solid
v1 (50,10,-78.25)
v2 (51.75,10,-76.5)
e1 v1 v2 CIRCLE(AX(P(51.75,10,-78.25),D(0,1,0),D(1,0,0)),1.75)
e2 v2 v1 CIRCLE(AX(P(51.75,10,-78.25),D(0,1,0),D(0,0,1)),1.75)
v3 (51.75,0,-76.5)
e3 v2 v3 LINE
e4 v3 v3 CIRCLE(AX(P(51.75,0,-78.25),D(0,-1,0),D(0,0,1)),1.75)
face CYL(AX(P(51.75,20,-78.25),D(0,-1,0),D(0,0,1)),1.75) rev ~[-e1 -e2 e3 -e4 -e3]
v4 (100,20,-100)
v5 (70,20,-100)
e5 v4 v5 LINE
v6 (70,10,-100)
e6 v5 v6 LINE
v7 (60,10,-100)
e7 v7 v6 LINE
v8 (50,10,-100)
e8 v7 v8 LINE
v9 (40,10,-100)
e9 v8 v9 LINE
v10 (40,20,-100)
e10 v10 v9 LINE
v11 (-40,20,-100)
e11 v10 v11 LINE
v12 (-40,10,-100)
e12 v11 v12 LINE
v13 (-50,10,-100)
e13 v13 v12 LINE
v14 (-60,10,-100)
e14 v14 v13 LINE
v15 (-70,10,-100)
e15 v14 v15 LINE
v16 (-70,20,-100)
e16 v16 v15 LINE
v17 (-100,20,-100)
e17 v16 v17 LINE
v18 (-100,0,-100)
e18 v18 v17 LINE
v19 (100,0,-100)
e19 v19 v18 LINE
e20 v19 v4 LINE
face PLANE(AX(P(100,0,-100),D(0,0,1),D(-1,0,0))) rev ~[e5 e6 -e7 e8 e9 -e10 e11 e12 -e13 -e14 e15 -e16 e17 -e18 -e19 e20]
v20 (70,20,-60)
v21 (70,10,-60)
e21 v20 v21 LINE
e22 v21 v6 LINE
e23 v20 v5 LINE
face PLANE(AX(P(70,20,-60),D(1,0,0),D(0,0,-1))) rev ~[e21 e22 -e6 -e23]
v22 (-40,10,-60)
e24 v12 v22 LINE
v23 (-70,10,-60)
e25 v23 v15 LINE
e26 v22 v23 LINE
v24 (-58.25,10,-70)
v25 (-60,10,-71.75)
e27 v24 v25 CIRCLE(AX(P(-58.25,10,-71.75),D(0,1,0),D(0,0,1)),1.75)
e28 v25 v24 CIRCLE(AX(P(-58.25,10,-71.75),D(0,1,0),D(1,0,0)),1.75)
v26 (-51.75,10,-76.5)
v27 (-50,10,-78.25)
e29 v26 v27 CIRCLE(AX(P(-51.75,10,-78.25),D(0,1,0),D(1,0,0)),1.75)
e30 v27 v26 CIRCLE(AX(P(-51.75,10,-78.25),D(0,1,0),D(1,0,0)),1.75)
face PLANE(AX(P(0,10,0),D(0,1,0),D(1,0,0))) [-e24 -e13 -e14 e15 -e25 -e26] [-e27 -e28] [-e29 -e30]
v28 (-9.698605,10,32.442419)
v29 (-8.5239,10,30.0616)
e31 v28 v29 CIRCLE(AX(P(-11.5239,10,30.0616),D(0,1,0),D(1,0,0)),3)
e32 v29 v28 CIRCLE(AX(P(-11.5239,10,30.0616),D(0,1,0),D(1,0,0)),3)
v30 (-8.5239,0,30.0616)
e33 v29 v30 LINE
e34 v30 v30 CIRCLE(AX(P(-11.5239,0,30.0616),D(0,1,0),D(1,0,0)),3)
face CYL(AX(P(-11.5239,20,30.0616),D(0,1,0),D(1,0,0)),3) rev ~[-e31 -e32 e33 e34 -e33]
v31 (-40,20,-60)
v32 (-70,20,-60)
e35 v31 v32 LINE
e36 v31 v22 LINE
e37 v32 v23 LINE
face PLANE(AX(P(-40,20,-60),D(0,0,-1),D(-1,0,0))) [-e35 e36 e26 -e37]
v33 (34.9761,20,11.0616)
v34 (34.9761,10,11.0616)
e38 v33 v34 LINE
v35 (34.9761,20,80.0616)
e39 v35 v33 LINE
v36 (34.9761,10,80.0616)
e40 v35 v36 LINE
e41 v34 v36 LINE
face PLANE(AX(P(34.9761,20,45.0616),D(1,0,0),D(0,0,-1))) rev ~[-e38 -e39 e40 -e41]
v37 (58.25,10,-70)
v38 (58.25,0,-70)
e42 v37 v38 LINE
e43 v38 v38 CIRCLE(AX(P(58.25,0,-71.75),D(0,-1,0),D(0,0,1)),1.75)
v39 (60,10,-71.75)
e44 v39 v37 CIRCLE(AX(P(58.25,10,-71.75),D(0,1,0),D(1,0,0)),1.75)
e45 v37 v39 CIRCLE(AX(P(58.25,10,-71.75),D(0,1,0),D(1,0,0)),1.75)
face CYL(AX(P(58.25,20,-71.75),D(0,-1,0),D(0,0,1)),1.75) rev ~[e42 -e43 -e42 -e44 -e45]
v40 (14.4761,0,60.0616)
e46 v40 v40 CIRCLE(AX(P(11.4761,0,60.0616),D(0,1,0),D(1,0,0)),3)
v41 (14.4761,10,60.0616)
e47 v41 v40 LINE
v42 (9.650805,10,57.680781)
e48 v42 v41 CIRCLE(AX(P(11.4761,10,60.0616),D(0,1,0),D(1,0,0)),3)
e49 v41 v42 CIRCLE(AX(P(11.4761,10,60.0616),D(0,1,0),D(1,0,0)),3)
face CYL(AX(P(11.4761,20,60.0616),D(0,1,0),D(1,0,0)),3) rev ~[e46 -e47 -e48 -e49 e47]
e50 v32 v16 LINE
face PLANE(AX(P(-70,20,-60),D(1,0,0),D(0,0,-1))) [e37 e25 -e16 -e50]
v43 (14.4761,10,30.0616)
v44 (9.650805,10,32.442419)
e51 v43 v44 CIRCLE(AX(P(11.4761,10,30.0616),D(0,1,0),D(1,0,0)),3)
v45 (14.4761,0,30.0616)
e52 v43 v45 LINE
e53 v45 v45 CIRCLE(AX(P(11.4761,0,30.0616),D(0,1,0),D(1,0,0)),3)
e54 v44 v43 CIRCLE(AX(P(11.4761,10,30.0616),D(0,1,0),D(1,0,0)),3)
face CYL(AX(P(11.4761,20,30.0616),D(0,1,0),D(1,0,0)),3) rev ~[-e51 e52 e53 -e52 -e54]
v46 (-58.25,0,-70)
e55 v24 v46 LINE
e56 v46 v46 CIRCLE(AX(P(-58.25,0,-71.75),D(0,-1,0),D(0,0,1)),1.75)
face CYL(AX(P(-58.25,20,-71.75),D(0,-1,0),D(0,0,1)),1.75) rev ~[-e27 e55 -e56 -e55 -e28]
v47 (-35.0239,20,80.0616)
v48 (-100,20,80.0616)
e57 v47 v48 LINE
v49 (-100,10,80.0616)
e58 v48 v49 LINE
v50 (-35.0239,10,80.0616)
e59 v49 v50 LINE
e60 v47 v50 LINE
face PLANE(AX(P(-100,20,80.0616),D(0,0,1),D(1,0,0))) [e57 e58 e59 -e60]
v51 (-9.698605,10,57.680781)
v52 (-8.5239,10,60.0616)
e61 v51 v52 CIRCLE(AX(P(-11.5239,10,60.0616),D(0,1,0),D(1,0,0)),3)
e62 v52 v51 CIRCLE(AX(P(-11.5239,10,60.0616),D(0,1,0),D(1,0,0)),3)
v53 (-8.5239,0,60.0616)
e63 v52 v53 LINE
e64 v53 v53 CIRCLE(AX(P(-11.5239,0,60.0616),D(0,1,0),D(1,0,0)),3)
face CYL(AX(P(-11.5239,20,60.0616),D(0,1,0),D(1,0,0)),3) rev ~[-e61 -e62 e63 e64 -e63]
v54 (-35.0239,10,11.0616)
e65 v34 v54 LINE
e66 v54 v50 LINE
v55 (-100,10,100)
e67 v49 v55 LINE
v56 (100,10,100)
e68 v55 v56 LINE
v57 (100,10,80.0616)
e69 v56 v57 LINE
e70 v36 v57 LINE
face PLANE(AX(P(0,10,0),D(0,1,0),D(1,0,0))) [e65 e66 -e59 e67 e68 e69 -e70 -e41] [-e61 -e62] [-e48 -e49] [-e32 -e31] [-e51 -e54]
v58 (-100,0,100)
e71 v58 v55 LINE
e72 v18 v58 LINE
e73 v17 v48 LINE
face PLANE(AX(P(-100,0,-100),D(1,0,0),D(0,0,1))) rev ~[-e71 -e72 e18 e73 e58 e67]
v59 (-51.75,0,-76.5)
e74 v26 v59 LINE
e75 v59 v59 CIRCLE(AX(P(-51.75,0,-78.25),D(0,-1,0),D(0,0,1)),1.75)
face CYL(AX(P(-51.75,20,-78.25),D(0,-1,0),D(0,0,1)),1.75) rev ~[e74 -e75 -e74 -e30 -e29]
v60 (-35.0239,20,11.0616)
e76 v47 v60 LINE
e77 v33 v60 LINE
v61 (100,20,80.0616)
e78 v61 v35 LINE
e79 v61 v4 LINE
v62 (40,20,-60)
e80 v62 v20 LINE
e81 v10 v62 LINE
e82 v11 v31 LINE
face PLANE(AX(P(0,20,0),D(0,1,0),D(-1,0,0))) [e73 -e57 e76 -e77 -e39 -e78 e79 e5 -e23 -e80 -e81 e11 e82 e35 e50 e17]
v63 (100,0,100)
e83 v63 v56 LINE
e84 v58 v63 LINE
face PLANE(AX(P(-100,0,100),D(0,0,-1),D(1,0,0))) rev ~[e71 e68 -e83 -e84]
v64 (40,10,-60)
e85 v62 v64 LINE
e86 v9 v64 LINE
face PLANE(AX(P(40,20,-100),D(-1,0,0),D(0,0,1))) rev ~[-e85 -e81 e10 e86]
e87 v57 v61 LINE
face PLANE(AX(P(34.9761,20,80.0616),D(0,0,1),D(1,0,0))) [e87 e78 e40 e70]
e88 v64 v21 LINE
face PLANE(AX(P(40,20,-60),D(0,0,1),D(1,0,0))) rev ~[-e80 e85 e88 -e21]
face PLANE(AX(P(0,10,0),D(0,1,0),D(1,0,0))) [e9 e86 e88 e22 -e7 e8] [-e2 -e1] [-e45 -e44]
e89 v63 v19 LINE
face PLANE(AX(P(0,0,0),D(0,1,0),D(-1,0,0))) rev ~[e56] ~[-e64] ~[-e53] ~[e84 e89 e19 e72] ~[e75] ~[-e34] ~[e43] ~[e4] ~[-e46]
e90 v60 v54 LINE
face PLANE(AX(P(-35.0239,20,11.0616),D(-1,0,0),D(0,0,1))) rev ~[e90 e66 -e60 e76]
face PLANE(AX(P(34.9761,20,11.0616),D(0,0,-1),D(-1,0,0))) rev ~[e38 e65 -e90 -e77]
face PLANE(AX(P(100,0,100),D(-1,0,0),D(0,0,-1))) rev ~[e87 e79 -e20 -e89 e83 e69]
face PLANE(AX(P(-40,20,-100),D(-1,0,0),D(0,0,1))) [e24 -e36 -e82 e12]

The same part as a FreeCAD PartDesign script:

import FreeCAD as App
import Part
import Sketcher

V = App.Vector
Q = App.Units.Quantity

doc = App.newDocument("Part")
body = doc.addObject("PartDesign::Body", "Body")

sketch1 = doc.addObject("Sketcher::SketchObject", "Sketch")
body.addObject(sketch1)
sketch1.AttachmentSupport = (doc.XZ_Plane, [""])
sketch1.MapMode = "FlatFace"
sketch1.addGeometry(Part.LineSegment(V(-100, -100, 0), V(-100, 100, 0)), False)
sketch1.addGeometry(Part.LineSegment(V(-100, 100, 0), V(100, 100, 0)), False)
sketch1.addGeometry(Part.LineSegment(V(100, 100, 0), V(100, -100, 0)), False)
sketch1.addGeometry(Part.LineSegment(V(100, -100, 0), V(-100, -100, 0)), False)
sketch1.addConstraint(Sketcher.Constraint("Coincident", 0, 2, 1, 1))
sketch1.addConstraint(Sketcher.Constraint("Coincident", 1, 2, 2, 1))
sketch1.addConstraint(Sketcher.Constraint("Coincident", 2, 2, 3, 1))
sketch1.addConstraint(Sketcher.Constraint("Coincident", 3, 2, 0, 1))
sketch1.addConstraint(Sketcher.Constraint("Vertical", 0))
sketch1.addConstraint(Sketcher.Constraint("Horizontal", 1))
sketch1.addConstraint(Sketcher.Constraint("Vertical", 2))
sketch1.addConstraint(Sketcher.Constraint("Horizontal", 3))
sketch1.addConstraint(Sketcher.Constraint("Symmetric", 0, 2, 2, 2, -1, 1))
sketch1.addConstraint(Sketcher.Constraint("Equal", 3, 0))
sketch1.addConstraint(Sketcher.Constraint("DistanceX", 1, 1, 1, 2, Q("200 mm")))
pad1 = doc.addObject("PartDesign::Pad", "Pad")
body.addObject(pad1)
pad1.Profile = sketch1
pad1.Length = 20
pad1.Reversed = True

sketch2 = doc.addObject("Sketcher::SketchObject", "Sketch001")
body.addObject(sketch2)
sketch2.AttachmentSupport = (doc.XZ_Plane, [""])
sketch2.MapMode = "FlatFace"
sketch2.AttachmentOffset = App.Placement(V(0, 0, -20), App.Rotation())
sketch2.addGeometry(Part.LineSegment(V(-35, 11.1, 0), V(-35, 80.1, 0)), False)
sketch2.addGeometry(Part.LineSegment(V(-35, 80.1, 0), V(-105, 80.1, 0)), False)
sketch2.addGeometry(Part.LineSegment(V(-105, 80.1, 0), V(-105, 100.1, 0)), False)
sketch2.addGeometry(Part.LineSegment(V(-105, 100.1, 0), V(105, 100.1, 0)), False)
sketch2.addGeometry(Part.LineSegment(V(105, 100.1, 0), V(105, 80.1, 0)), False)
sketch2.addGeometry(Part.LineSegment(V(105, 80.1, 0), V(35, 80.1, 0)), False)
sketch2.addGeometry(Part.LineSegment(V(35, 80.1, 0), V(35, 11.1, 0)), False)
sketch2.addGeometry(Part.LineSegment(V(35, 11.1, 0), V(-35, 11.1, 0)), False)
sketch2.addGeometry(Part.Circle(V(-11.5, 30.1, 0), V(0, 0, 1), 3), False)
sketch2.addGeometry(Part.Circle(V(11.5, 30.1, 0), V(0, 0, 1), 3), False)
sketch2.addGeometry(Part.Circle(V(-11.5, 60.1, 0), V(0, 0, 1), 3), False)
sketch2.addGeometry(Part.Circle(V(11.5, 60.1, 0), V(0, 0, 1), 3), False)
sketch2.addConstraint(Sketcher.Constraint("Coincident", 0, 2, 1, 1))
sketch2.addConstraint(Sketcher.Constraint("Coincident", 1, 2, 2, 1))
sketch2.addConstraint(Sketcher.Constraint("Coincident", 2, 2, 3, 1))
sketch2.addConstraint(Sketcher.Constraint("Coincident", 3, 2, 4, 1))
sketch2.addConstraint(Sketcher.Constraint("Coincident", 4, 2, 5, 1))
sketch2.addConstraint(Sketcher.Constraint("Coincident", 5, 2, 6, 1))
sketch2.addConstraint(Sketcher.Constraint("Coincident", 6, 2, 7, 1))
sketch2.addConstraint(Sketcher.Constraint("Coincident", 7, 2, 0, 1))
sketch2.addConstraint(Sketcher.Constraint("Vertical", 0))
sketch2.addConstraint(Sketcher.Constraint("Horizontal", 1))
sketch2.addConstraint(Sketcher.Constraint("Vertical", 2))
sketch2.addConstraint(Sketcher.Constraint("Horizontal", 3))
sketch2.addConstraint(Sketcher.Constraint("Vertical", 4))
sketch2.addConstraint(Sketcher.Constraint("Horizontal", 5))
sketch2.addConstraint(Sketcher.Constraint("Vertical", 6))
sketch2.addConstraint(Sketcher.Constraint("Horizontal", 7))
sketch2.addConstraint(Sketcher.Constraint("Equal", 8, 9))
sketch2.addConstraint(Sketcher.Constraint("Equal", 9, 10))
sketch2.addConstraint(Sketcher.Constraint("Equal", 10, 11))
sketch2.addConstraint(Sketcher.Constraint("Symmetric", 1, 2, 4, 2, -2))
sketch2.addConstraint(Sketcher.Constraint("Horizontal", 8, 3, 9, 3))
sketch2.addConstraint(Sketcher.Constraint("Horizontal", 10, 3, 11, 3))
sketch2.addConstraint(Sketcher.Constraint("Vertical", 8, 3, 10, 3))
sketch2.addConstraint(Sketcher.Constraint("Vertical", 9, 3, 11, 3))
sketch2.addConstraint(Sketcher.Constraint("DistanceY", 0, 1, 0, 2, Q("69 mm")))
sketch2.addConstraint(Sketcher.Constraint("DistanceY", 2, 1, 2, 2, Q("20 mm")))
sketch2.addConstraint(Sketcher.Constraint("Diameter", 8, Q("6 mm")))
sketch2.addConstraint(Sketcher.Constraint("DistanceY", 8, 3, 10, 3, Q("30 mm")))
sketch2.addConstraint(Sketcher.Constraint("DistanceY", 10, 3, 0, 2, Q("20 mm")))
sketch2.addConstraint(Sketcher.Constraint("DistanceX", 3, 1, 3, 2, Q("210 mm")))
sketch2.addConstraint(Sketcher.Constraint("DistanceX", 7, 2, 7, 1, Q("70 mm")))
sketch2.addConstraint(Sketcher.Constraint("DistanceX", 8, 3, 9, 3, Q("23 mm")))
sketch2.addConstraint(Sketcher.Constraint("DistanceX", 0, 2, 10, 3, Q("23.5 mm")))
sketch2.addConstraint(Sketcher.Constraint("DistanceX", 1, 2, 1, 1, Q("69.976 mm")))
sketch2.addConstraint(Sketcher.Constraint("DistanceY", -1, 1, 8, 3, Q("30.0616 mm")))
pocket1 = doc.addObject("PartDesign::Pocket", "Pocket")
body.addObject(pocket1)
pocket1.Profile = sketch2
pocket1.Length = 10
pocket1.Reversed = True

sketch3 = doc.addObject("Sketcher::SketchObject", "Sketch002")
body.addObject(sketch3)
sketch3.AttachmentSupport = (doc.XZ_Plane, [""])
sketch3.MapMode = "FlatFace"
sketch3.AttachmentOffset = App.Placement(V(0, 0, -20), App.Rotation())
sketch3.addGeometry(Part.Circle(V(-11.5, 30.1, 0), V(0, 0, 1), 3), False)
sketch3.addGeometry(Part.Circle(V(11.5, 30.1, 0), V(0, 0, 1), 3), False)
sketch3.addGeometry(Part.Circle(V(11.5, 60.1, 0), V(0, 0, 1), 3), False)
sketch3.addGeometry(Part.Circle(V(-11.5, 60.1, 0), V(0, 0, 1), 3), False)
sketch3.addConstraint(Sketcher.Constraint("Equal", 0, 1))
sketch3.addConstraint(Sketcher.Constraint("Equal", 1, 2))
sketch3.addConstraint(Sketcher.Constraint("Equal", 2, 3))
sketch3.addConstraint(Sketcher.Constraint("Horizontal", 0, 3, 1, 3))
sketch3.addConstraint(Sketcher.Constraint("Horizontal", 2, 3, 3, 3))
sketch3.addConstraint(Sketcher.Constraint("Vertical", 1, 3, 2, 3))
sketch3.addConstraint(Sketcher.Constraint("Vertical", 0, 3, 3, 3))
sketch3.addConstraint(Sketcher.Constraint("Diameter", 0, Q("6 mm")))
sketch3.addConstraint(Sketcher.Constraint("DistanceX", 0, 3, 1, 3, Q("23 mm")))
sketch3.addConstraint(Sketcher.Constraint("DistanceY", 1, 3, 2, 3, Q("30 mm")))
sketch3.addConstraint(Sketcher.Constraint("DistanceX", 0, 3, -1, 1, Q("11.524 mm")))
sketch3.addConstraint(Sketcher.Constraint("DistanceY", -1, 1, 0, 3, Q("30.0616 mm")))
pocket2 = doc.addObject("PartDesign::Pocket", "Pocket001")
body.addObject(pocket2)
pocket2.Profile = sketch3
pocket2.Length = 20
pocket2.Reversed = True

sketch4 = doc.addObject("Sketcher::SketchObject", "Sketch003")
body.addObject(sketch4)
sketch4.AttachmentSupport = (doc.XZ_Plane, [""])
sketch4.MapMode = "FlatFace"
sketch4.AttachmentOffset = App.Placement(V(0, 0, -20), App.Rotation())
sketch4.addGeometry(Part.Circle(V(-58.2, -71.8, 0), V(0, 0, 1), 1.8), False)
sketch4.addGeometry(Part.Circle(V(-51.8, -78.2, 0), V(0, 0, 1), 1.8), False)
sketch4.addGeometry(Part.Circle(V(58.2, -71.8, 0), V(0, 0, 1), 1.8), False)
sketch4.addGeometry(Part.Circle(V(51.8, -78.2, 0), V(0, 0, 1), 1.8), False)
sketch4.addConstraint(Sketcher.Constraint("Equal", 0, 1))
sketch4.addConstraint(Sketcher.Constraint("Equal", 1, 2))
sketch4.addConstraint(Sketcher.Constraint("Equal", 2, 3))
sketch4.addConstraint(Sketcher.Constraint("Symmetric", 0, 3, 2, 3, -2))
sketch4.addConstraint(Sketcher.Constraint("Symmetric", 1, 3, 3, 3, -2))
sketch4.addConstraint(Sketcher.Constraint("Diameter", 0, Q("3.5 mm")))
sketch4.addConstraint(Sketcher.Constraint("DistanceX", 1, 3, 2, 3, Q("110 mm")))
sketch4.addConstraint(Sketcher.Constraint("DistanceX", 0, 3, 1, 3, Q("6.5 mm")))
sketch4.addConstraint(Sketcher.Constraint("DistanceY", 1, 3, 0, 3, Q("6.5 mm")))
sketch4.addConstraint(Sketcher.Constraint("DistanceY", 0, 3, -1, 1, Q("71.75 mm")))
doc.recompute()
hole = doc.addObject("PartDesign::Hole", "Hole")
body.addObject(hole)
hole.Profile = sketch4
hole.ThreadType = "None"
hole.Diameter = 3.5
hole.DepthType = "ThroughAll"
hole.Reversed = True

sketch5 = doc.addObject("Sketcher::SketchObject", "Sketch004")
body.addObject(sketch5)
sketch5.AttachmentSupport = (doc.XZ_Plane, [""])
sketch5.MapMode = "FlatFace"
sketch5.AttachmentOffset = App.Placement(V(0, 0, -20), App.Rotation())
sketch5.addGeometry(Part.LineSegment(V(-40, -100, 0), V(-50, -100, 0)), False)
sketch5.addGeometry(Part.LineSegment(V(-50, -100, 0), V(-60, -100, 0)), False)
sketch5.addGeometry(Part.LineSegment(V(-60, -100, 0), V(-70, -100, 0)), False)
sketch5.addGeometry(Part.LineSegment(V(-70, -100, 0), V(-70, -60, 0)), False)
sketch5.addGeometry(Part.LineSegment(V(-70, -60, 0), V(-40, -60, 0)), False)
sketch5.addGeometry(Part.LineSegment(V(-40, -60, 0), V(-40, -100, 0)), False)
sketch5.addGeometry(Part.Circle(V(-58.2, -71.8, 0), V(0, 0, 1), 1.8), False)
sketch5.addGeometry(Part.Circle(V(-51.8, -78.2, 0), V(0, 0, 1), 1.8), False)
sketch5.addGeometry(Part.LineSegment(V(60, -100, 0), V(50, -100, 0)), False)
sketch5.addGeometry(Part.LineSegment(V(50, -100, 0), V(40, -100, 0)), False)
sketch5.addGeometry(Part.LineSegment(V(40, -100, 0), V(40, -60, 0)), False)
sketch5.addGeometry(Part.LineSegment(V(40, -60, 0), V(70, -60, 0)), False)
sketch5.addGeometry(Part.LineSegment(V(70, -60, 0), V(70, -100, 0)), False)
sketch5.addGeometry(Part.LineSegment(V(70, -100, 0), V(60, -100, 0)), False)
sketch5.addGeometry(Part.Circle(V(58.2, -71.8, 0), V(0, 0, 1), 1.8), False)
sketch5.addGeometry(Part.Circle(V(51.8, -78.2, 0), V(0, 0, 1), 1.8), False)
sketch5.addConstraint(Sketcher.Constraint("Coincident", 0, 2, 1, 1))
sketch5.addConstraint(Sketcher.Constraint("Coincident", 1, 2, 2, 1))
sketch5.addConstraint(Sketcher.Constraint("Coincident", 2, 2, 3, 1))
sketch5.addConstraint(Sketcher.Constraint("Coincident", 3, 2, 4, 1))
sketch5.addConstraint(Sketcher.Constraint("Coincident", 4, 2, 5, 1))
sketch5.addConstraint(Sketcher.Constraint("Coincident", 5, 2, 0, 1))
sketch5.addConstraint(Sketcher.Constraint("Coincident", 8, 2, 9, 1))
sketch5.addConstraint(Sketcher.Constraint("Coincident", 9, 2, 10, 1))
sketch5.addConstraint(Sketcher.Constraint("Coincident", 10, 2, 11, 1))
sketch5.addConstraint(Sketcher.Constraint("Coincident", 11, 2, 12, 1))
sketch5.addConstraint(Sketcher.Constraint("Coincident", 12, 2, 13, 1))
sketch5.addConstraint(Sketcher.Constraint("Coincident", 13, 2, 8, 1))
sketch5.addConstraint(Sketcher.Constraint("Horizontal", 0))
sketch5.addConstraint(Sketcher.Constraint("Horizontal", 1))
sketch5.addConstraint(Sketcher.Constraint("Horizontal", 2))
sketch5.addConstraint(Sketcher.Constraint("Vertical", 3))
sketch5.addConstraint(Sketcher.Constraint("Horizontal", 4))
sketch5.addConstraint(Sketcher.Constraint("Vertical", 5))
sketch5.addConstraint(Sketcher.Constraint("Horizontal", 8))
sketch5.addConstraint(Sketcher.Constraint("Horizontal", 9))
sketch5.addConstraint(Sketcher.Constraint("Vertical", 10))
sketch5.addConstraint(Sketcher.Constraint("Horizontal", 11))
sketch5.addConstraint(Sketcher.Constraint("Vertical", 12))
sketch5.addConstraint(Sketcher.Constraint("Horizontal", 13))
sketch5.addConstraint(Sketcher.Constraint("Equal", 6, 7))
sketch5.addConstraint(Sketcher.Constraint("Equal", 7, 14))
sketch5.addConstraint(Sketcher.Constraint("Equal", 14, 15))
sketch5.addConstraint(Sketcher.Constraint("Symmetric", 6, 3, 14, 3, -2))
sketch5.addConstraint(Sketcher.Constraint("Symmetric", 7, 3, 15, 3, -2))
sketch5.addConstraint(Sketcher.Constraint("Symmetric", 0, 2, 8, 2, -2))
sketch5.addConstraint(Sketcher.Constraint("Symmetric", 4, 2, 10, 2, -2))
sketch5.addConstraint(Sketcher.Constraint("Equal", 0, 1))
sketch5.addConstraint(Sketcher.Constraint("Equal", 1, 2))
sketch5.addConstraint(Sketcher.Constraint("Equal", 2, 8))
sketch5.addConstraint(Sketcher.Constraint("Equal", 4, 11))
sketch5.addConstraint(Sketcher.Constraint("DistanceX", 0, 2, 0, 1, Q("10 mm")))
sketch5.addConstraint(Sketcher.Constraint("DistanceY", 3, 1, 3, 2, Q("40 mm")))
sketch5.addConstraint(Sketcher.Constraint("DistanceX", 4, 2, -1, 1, Q("40 mm")))
sketch5.addConstraint(Sketcher.Constraint("Diameter", 6, Q("3.5 mm")))
sketch5.addConstraint(Sketcher.Constraint("DistanceY", 0, 2, -1, 1, Q("100 mm")))
sketch5.addConstraint(Sketcher.Constraint("DistanceX", 7, 3, 14, 3, Q("110 mm")))
sketch5.addConstraint(Sketcher.Constraint("DistanceX", 6, 3, 7, 3, Q("6.5 mm")))
sketch5.addConstraint(Sketcher.Constraint("DistanceY", 7, 3, 6, 3, Q("6.5 mm")))
sketch5.addConstraint(Sketcher.Constraint("DistanceY", 6, 3, -1, 1, Q("71.75 mm")))
pocket3 = doc.addObject("PartDesign::Pocket", "Pocket002")
body.addObject(pocket3)
pocket3.Profile = sketch5
pocket3.Length = 10
pocket3.Reversed = True

doc.recompute()
